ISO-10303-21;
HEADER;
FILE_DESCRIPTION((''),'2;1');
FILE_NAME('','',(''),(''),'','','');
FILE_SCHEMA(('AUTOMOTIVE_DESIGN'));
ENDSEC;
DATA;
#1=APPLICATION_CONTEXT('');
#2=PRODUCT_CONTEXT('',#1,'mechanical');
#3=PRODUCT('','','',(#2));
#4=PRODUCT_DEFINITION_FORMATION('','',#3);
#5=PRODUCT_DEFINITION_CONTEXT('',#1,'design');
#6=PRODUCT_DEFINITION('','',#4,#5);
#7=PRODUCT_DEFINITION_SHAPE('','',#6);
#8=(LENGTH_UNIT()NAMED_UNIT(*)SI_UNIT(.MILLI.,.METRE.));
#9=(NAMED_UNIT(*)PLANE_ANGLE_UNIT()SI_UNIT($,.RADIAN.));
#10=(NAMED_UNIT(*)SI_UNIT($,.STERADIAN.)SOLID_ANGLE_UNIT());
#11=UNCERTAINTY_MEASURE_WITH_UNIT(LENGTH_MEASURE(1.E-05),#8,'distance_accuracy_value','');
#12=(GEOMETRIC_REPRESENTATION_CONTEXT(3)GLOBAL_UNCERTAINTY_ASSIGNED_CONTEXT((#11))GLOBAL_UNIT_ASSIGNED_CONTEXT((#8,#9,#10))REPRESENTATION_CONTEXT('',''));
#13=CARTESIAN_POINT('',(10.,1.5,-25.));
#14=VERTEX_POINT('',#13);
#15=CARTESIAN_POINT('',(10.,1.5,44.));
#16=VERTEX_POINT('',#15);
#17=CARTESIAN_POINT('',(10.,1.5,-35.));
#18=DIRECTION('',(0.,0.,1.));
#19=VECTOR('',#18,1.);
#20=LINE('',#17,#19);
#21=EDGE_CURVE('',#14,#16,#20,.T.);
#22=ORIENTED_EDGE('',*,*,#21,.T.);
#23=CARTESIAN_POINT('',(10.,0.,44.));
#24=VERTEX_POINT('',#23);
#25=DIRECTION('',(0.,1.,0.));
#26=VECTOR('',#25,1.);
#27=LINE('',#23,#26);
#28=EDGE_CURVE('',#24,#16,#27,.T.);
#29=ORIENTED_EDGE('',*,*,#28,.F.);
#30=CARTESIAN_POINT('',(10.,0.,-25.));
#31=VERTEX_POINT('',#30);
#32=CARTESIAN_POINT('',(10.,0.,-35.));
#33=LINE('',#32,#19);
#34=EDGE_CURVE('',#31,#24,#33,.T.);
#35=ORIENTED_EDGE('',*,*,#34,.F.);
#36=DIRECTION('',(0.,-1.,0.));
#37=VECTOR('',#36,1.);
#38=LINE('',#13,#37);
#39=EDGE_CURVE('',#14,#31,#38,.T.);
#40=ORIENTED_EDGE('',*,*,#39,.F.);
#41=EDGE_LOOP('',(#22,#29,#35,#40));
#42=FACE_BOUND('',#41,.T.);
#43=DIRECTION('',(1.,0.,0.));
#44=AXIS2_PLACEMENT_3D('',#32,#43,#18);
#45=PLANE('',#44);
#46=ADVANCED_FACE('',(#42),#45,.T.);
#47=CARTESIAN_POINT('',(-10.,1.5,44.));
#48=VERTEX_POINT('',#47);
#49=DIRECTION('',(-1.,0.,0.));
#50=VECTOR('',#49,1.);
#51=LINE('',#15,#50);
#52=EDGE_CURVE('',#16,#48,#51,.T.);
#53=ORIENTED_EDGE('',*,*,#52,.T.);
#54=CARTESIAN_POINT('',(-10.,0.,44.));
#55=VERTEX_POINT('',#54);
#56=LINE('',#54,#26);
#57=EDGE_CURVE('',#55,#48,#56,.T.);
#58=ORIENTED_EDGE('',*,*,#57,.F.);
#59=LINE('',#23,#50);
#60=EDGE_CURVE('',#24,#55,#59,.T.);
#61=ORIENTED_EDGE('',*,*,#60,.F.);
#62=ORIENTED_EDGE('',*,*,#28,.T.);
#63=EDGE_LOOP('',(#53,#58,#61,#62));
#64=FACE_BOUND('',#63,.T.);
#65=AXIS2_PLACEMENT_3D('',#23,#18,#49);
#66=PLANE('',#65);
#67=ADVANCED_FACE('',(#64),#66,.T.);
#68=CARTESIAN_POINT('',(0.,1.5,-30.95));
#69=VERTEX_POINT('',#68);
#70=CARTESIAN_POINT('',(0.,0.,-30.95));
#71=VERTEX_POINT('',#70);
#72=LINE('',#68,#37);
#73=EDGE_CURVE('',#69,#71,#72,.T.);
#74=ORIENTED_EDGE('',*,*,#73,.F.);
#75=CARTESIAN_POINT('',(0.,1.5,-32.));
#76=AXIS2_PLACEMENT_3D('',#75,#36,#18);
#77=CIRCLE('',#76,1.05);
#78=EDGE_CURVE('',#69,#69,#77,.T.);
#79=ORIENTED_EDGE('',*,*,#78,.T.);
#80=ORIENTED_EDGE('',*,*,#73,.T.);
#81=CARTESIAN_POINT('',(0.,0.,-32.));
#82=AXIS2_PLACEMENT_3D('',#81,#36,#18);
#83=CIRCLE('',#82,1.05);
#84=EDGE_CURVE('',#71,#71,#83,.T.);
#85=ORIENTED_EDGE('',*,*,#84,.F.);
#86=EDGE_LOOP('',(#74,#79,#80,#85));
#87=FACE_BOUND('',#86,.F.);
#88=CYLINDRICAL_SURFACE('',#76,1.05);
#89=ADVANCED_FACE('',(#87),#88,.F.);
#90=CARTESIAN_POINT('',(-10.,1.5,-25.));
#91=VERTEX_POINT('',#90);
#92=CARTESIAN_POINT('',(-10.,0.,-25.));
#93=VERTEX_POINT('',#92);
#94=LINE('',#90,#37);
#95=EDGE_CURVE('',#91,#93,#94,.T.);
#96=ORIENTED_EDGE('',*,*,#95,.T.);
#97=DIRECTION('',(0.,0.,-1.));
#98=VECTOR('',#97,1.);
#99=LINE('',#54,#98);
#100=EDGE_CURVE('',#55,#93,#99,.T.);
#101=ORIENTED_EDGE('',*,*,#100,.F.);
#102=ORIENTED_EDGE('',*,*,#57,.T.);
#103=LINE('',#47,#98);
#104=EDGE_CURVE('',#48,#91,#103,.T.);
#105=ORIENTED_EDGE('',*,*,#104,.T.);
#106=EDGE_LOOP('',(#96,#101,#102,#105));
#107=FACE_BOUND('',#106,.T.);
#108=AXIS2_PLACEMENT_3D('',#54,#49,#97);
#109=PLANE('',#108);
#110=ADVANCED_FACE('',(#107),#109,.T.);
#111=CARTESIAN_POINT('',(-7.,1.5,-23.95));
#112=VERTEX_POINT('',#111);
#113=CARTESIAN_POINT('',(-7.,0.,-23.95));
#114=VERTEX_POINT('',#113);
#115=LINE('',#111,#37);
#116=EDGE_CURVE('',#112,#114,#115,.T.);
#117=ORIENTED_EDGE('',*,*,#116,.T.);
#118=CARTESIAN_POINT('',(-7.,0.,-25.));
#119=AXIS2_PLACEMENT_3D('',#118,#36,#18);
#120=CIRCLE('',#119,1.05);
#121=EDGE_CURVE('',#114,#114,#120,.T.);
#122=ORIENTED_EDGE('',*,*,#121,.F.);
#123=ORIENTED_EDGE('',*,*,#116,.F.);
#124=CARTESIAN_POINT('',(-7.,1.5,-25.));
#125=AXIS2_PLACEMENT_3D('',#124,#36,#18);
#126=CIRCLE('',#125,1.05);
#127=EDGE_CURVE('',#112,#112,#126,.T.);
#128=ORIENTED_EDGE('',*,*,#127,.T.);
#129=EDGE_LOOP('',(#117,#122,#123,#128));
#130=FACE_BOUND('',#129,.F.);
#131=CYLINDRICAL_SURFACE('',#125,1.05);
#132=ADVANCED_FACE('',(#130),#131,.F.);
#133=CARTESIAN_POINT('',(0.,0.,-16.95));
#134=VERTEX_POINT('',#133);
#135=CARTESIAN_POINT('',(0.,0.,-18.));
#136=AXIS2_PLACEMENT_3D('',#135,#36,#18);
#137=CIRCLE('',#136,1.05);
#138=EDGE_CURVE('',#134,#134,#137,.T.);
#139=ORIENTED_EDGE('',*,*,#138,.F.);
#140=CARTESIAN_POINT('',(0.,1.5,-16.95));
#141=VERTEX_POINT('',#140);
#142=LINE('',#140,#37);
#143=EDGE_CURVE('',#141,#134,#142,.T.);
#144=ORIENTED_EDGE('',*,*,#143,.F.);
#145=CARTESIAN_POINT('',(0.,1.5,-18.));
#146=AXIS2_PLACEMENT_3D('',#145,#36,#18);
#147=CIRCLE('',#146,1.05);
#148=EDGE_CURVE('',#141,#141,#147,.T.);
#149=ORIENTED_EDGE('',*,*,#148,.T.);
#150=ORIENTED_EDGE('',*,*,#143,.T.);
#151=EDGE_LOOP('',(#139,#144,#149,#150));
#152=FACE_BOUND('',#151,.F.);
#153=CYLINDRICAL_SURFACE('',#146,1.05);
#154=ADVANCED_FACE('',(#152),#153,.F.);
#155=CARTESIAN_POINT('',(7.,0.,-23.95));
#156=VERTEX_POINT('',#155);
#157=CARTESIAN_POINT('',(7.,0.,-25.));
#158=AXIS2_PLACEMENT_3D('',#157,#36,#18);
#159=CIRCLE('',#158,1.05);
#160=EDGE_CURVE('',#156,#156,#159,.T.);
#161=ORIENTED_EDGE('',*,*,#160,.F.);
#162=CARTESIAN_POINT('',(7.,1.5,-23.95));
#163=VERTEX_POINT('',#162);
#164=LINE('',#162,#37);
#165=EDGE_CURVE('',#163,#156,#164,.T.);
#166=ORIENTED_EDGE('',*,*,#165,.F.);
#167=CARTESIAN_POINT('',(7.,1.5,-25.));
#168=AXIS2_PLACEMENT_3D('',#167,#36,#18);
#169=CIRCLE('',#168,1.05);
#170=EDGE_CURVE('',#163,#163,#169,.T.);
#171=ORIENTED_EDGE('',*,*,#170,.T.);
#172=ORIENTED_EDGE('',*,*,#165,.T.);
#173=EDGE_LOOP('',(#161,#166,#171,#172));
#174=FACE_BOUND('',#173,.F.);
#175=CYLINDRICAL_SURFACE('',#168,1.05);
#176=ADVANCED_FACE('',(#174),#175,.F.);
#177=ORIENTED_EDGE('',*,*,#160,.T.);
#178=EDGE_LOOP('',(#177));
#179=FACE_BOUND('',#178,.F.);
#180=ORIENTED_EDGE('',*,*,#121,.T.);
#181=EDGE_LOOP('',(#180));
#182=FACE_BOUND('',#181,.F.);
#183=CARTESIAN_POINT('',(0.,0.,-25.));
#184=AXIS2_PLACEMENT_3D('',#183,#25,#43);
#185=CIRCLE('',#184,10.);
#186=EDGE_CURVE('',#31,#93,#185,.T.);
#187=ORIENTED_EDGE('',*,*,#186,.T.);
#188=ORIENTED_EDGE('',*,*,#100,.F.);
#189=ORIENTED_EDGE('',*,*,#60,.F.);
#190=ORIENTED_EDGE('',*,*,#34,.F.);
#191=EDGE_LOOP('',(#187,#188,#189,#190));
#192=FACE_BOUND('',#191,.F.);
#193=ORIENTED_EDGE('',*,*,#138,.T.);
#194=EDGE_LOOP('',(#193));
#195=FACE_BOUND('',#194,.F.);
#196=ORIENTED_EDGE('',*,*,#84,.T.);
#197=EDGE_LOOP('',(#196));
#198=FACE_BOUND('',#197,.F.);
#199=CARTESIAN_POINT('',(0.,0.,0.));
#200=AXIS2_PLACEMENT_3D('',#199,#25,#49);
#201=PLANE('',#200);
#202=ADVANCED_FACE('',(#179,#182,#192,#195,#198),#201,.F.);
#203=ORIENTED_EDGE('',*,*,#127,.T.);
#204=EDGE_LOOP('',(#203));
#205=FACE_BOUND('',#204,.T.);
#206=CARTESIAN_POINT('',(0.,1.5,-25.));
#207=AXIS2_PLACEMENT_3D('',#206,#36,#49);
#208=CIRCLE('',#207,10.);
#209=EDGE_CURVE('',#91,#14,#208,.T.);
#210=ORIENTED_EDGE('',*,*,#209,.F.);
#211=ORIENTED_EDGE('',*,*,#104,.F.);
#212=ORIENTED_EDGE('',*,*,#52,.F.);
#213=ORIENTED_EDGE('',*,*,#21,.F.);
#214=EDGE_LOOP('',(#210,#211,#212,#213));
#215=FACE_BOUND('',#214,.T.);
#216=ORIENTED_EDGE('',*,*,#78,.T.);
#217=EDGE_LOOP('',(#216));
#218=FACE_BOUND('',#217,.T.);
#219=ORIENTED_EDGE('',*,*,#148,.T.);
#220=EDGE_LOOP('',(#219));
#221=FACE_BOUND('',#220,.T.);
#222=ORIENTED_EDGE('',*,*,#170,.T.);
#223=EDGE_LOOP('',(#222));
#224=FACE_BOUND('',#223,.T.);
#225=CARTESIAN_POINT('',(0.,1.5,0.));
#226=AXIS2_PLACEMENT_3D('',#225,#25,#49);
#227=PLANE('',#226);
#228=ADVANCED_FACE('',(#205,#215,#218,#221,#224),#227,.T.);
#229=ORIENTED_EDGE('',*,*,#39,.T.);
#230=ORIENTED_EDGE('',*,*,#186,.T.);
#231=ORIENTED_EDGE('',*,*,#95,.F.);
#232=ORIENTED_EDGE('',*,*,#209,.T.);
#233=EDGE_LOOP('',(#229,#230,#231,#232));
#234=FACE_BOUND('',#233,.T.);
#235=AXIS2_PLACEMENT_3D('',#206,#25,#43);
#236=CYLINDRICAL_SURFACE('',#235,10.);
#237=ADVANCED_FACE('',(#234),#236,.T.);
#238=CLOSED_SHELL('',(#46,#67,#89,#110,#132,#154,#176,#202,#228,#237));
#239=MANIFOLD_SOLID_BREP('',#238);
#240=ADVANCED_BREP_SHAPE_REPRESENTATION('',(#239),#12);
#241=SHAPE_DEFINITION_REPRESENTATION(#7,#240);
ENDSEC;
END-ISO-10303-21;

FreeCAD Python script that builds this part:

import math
import FreeCAD as App
import Part
import Sketcher
from FreeCAD import Vector
Q = App.Units.Quantity

doc = App.newDocument("Part")
params = doc.addObject("Spreadsheet::Sheet", "Params")
for row, (alias, value) in enumerate([
    ("sketch1_width", "20 mm"),
    ("sketch1_height", "79 mm"),
    ("pad1_length", "1.5 mm"),
    ("sketch2_radius", "10 mm"),
    ("pocket1_length", "10 mm"),
    ("sketch3_diameter", "2.1 mm"),
    ("hole_diameter", "2.1 mm"),
    ("hole_depth", "1.5 mm"),
], start=1):
    params.set(f"A{row}", alias)
    params.set(f"B{row}", "=" + value)
    params.setAlias(f"B{row}", alias)

body = doc.addObject("PartDesign::Body", "Body")

# Sketch on XZ plane
sketch1 = body.newObject("Sketcher::SketchObject", "Sketch")
sketch1.AttachmentSupport = (doc.getObject("XZ_Plane"), [""])
sketch1.MapMode = "FlatFace"
sketch1.addGeometry(Part.LineSegment(Vector(10, -35, 0), Vector(-10, -35, 0)), False)
sketch1.addGeometry(Part.LineSegment(Vector(-10, -35, 0), Vector(-10, 44, 0)), False)
sketch1.addGeometry(Part.LineSegment(Vector(-10, 44, 0), Vector(10, 44, 0)), False)
sketch1.addGeometry(Part.LineSegment(Vector(10, 44, 0), Vector(10, -35, 0)), False)
sketch1.addConstraint(Sketcher.Constraint("Coincident", 0, 2, 1, 1))
sketch1.addConstraint(Sketcher.Constraint("Coincident", 1, 2, 2, 1))
sketch1.addConstraint(Sketcher.Constraint("Coincident", 2, 2, 3, 1))
sketch1.addConstraint(Sketcher.Constraint("Coincident", 3, 2, 0, 1))
sketch1.addConstraint(Sketcher.Constraint("Horizontal", 0))
sketch1.addConstraint(Sketcher.Constraint("Vertical", 1))
sketch1.addConstraint(Sketcher.Constraint("Horizontal", 2))
sketch1.addConstraint(Sketcher.Constraint("Vertical", 3))
sketch1.addConstraint(Sketcher.Constraint("DistanceX", 0, 2, 0, 1, Q("20 mm")))
sketch1.addConstraint(Sketcher.Constraint("DistanceY", 1, 1, 1, 2, Q("79 mm")))
sketch1.addConstraint(Sketcher.Constraint("DistanceX", 0, 2, -1, 1, Q("10 mm")))
sketch1.addConstraint(Sketcher.Constraint("DistanceY", 0, 2, -1, 1, Q("35 mm")))
sketch1.setExpression("Constraints[8]", "Params.sketch1_width")
sketch1.setExpression("Constraints[9]", "Params.sketch1_height")
pad1 = body.newObject("PartDesign::Pad", "Pad")
pad1.Profile = sketch1
pad1.setExpression("Length", "Params.pad1_length")
pad1.Reversed = True

# Sketch on XZ plane
sketch2 = body.newObject("Sketcher::SketchObject", "Sketch001")
sketch2.AttachmentSupport = (doc.getObject("XZ_Plane"), [""])
sketch2.MapMode = "FlatFace"
sketch2.AttachmentOffset = App.Placement(Vector(0, 0, -1.5), App.Rotation())
sketch2.addGeometry(Part.LineSegment(Vector(-10, -35, 0), Vector(-10, -25, 0)), False)
sketch2.addGeometry(Part.ArcOfCircle(Part.Circle(Vector(0, -25, 0), Vector(0, 0, 1), 10), math.radians(180), math.radians(270)), False)
sketch2.addGeometry(Part.LineSegment(Vector(0, -35, 0), Vector(-10, -35, 0)), False)
sketch2.addGeometry(Part.ArcOfCircle(Part.Circle(Vector(0, -25, 0), Vector(0, 0, 1), 10), math.radians(-90), math.radians(0)), False)
sketch2.addGeometry(Part.LineSegment(Vector(10, -25, 0), Vector(10, -35, 0)), False)
sketch2.addGeometry(Part.LineSegment(Vector(10, -35, 0), Vector(0, -35, 0)), False)
sketch2.addConstraint(Sketcher.Constraint("Tangent", 0, 2, 1, 1))
sketch2.addConstraint(Sketcher.Constraint("Tangent", 1, 2, 2, 1))
sketch2.addConstraint(Sketcher.Constraint("Coincident", 2, 2, 0, 1))
sketch2.addConstraint(Sketcher.Constraint("Tangent", 3, 2, 4, 1))
sketch2.addConstraint(Sketcher.Constraint("Coincident", 4, 2, 5, 1))
sketch2.addConstraint(Sketcher.Constraint("Tangent", 5, 2, 3, 1))
sketch2.addConstraint(Sketcher.Constraint("Vertical", 0))
sketch2.addConstraint(Sketcher.Constraint("Horizontal", 2))
sketch2.addConstraint(Sketcher.Constraint("Vertical", 4))
sketch2.addConstraint(Sketcher.Constraint("Horizontal", 5))
sketch2.addConstraint(Sketcher.Constraint("Coincident", 3, 3, 1, 3))
sketch2.addConstraint(Sketcher.Constraint("Equal", 1, 3))
sketch2.addConstraint(Sketcher.Constraint("PointOnObject", 1, 3, -2))
sketch2.addConstraint(Sketcher.Constraint("Radius", 1, Q("10 mm")))
sketch2.addConstraint(Sketcher.Constraint("DistanceY", 1, 3, -1, 1, Q("25 mm")))
sketch2.setExpression("Constraints[13]", "Params.sketch2_radius")
pocket1 = body.newObject("PartDesign::Pocket", "Pocket")
pocket1.Profile = sketch2
pocket1.setExpression("Length", "Params.pocket1_length")
pocket1.Reversed = True

# Sketch on XZ plane
sketch3 = body.newObject("Sketcher::SketchObject", "Sketch002")
sketch3.AttachmentSupport = (doc.getObject("XZ_Plane"), [""])
sketch3.MapMode = "FlatFace"
sketch3.AttachmentOffset = App.Placement(Vector(0, 0, -1.5), App.Rotation())
sketch3.addGeometry(Part.Circle(Vector(0, -32, 0), Vector(0, 0, 1), 1.1), False)
sketch3.addGeometry(Part.Circle(Vector(7, -25, 0), Vector(0, 0, 1), 1.1), False)
sketch3.addGeometry(Part.Circle(Vector(0, -18, 0), Vector(0, 0, 1), 1.1), False)
sketch3.addGeometry(Part.Circle(Vector(-7, -25, 0), Vector(0, 0, 1), 1.1), False)
sketch3.addConstraint(Sketcher.Constraint("Equal", 0, 1))
sketch3.addConstraint(Sketcher.Constraint("Equal", 1, 2))
sketch3.addConstraint(Sketcher.Constraint("Equal", 2, 3))
sketch3.addConstraint(Sketcher.Constraint("Symmetric", 1, 3, 3, 3, -2))
sketch3.addConstraint(Sketcher.Constraint("PointOnObject", 0, 3, -2))
sketch3.addConstraint(Sketcher.Constraint("PointOnObject", 2, 3, -2))
sketch3.addConstraint(Sketcher.Constraint("Diameter", 0, Q("2.1 mm")))
sketch3.addConstraint(Sketcher.Constraint("DistanceY", 0, 3, -1, 1, Q("32 mm")))
sketch3.addConstraint(Sketcher.Constraint("DistanceX", -1, 1, 1, 3, Q("7 mm")))
sketch3.addConstraint(Sketcher.Constraint("DistanceY", 1, 3, -1, 1, Q("25 mm")))
sketch3.addConstraint(Sketcher.Constraint("DistanceY", 2, 3, -1, 1, Q("18 mm")))
sketch3.setExpression("Constraints[6]", "Params.sketch3_diameter")
doc.recompute()
hole = body.newObject("PartDesign::Hole", "Hole")
hole.Profile = sketch3
hole.ThreadType = "None"
hole.setExpression("Diameter", "Params.hole_diameter")
hole.DepthType = "Dimension"
hole.setExpression("Depth", "Params.hole_depth")
hole.DrillPoint = "Flat"
hole.Reversed = True

doc.recompute()
